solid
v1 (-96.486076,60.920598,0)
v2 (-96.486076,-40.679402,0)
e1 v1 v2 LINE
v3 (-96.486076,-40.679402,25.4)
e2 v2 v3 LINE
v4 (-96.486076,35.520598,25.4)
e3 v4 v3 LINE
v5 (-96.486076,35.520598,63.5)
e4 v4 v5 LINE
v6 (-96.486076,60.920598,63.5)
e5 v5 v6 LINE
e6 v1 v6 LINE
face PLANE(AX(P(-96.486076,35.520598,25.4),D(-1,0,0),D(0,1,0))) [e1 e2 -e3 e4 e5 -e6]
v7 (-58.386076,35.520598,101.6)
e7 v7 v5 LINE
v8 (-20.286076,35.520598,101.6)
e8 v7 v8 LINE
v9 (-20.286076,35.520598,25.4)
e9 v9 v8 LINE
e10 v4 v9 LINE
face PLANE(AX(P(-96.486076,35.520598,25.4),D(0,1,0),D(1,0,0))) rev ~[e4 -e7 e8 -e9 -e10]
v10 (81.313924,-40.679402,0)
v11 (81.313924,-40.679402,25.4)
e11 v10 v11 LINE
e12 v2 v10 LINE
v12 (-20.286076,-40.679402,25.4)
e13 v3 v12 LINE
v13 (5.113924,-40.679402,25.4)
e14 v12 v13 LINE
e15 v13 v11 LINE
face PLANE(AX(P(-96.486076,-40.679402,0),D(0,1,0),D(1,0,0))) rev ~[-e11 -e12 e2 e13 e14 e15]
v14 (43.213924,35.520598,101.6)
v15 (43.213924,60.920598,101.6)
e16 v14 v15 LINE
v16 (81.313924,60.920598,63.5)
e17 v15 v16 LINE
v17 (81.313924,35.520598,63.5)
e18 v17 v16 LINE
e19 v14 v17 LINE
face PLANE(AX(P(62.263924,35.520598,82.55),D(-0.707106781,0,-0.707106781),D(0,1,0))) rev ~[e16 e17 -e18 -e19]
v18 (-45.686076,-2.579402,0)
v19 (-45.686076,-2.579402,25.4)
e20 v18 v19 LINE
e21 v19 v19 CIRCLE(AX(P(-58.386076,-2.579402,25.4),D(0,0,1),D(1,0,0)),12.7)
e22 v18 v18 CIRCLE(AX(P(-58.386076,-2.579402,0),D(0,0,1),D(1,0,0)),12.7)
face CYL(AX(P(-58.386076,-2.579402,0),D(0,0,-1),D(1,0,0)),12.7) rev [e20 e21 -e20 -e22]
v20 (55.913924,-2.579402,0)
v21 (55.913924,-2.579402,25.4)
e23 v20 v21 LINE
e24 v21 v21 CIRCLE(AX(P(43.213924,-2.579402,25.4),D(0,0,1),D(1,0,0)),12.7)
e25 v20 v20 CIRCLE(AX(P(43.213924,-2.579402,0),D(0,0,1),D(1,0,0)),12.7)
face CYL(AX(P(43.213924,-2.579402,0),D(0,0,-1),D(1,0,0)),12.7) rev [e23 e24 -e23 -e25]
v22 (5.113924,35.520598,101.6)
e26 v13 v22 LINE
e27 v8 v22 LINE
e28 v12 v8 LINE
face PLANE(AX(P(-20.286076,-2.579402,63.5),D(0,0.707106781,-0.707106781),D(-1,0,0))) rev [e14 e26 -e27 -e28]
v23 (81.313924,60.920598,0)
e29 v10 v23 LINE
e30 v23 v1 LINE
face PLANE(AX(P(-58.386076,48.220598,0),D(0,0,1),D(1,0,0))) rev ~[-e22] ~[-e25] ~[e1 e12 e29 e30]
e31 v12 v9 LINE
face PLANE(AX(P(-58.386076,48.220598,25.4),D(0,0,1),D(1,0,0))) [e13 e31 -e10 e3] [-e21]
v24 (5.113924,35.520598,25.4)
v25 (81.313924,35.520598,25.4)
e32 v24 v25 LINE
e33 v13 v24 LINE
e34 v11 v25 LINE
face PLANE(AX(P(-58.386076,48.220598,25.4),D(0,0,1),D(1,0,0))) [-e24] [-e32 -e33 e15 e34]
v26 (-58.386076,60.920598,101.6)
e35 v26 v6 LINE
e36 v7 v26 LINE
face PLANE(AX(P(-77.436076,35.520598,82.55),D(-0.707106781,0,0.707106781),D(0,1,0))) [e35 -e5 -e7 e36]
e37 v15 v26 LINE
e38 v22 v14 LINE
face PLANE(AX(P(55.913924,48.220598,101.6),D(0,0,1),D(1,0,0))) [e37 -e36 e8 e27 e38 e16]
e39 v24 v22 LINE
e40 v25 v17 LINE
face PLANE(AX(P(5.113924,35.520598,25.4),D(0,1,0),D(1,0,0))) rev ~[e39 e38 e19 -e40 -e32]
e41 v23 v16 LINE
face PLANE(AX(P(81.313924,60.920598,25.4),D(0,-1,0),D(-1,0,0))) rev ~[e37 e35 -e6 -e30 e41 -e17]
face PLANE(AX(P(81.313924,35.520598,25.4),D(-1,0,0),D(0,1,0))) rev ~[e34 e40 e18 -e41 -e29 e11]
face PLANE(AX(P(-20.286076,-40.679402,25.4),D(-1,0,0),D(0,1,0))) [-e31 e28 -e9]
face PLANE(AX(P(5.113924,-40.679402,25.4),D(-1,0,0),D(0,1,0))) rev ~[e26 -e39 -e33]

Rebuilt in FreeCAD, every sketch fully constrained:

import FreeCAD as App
import Part
import Sketcher

V = App.Vector
Q = App.Units.Quantity


def edges_at(feature, points):
    """Names of the edges that pass closest to the given points."""
    edges = feature.Shape.Edges
    near = lambda p: min(range(len(edges)), key=lambda i: edges[i].distToShape(Part.Vertex(*p))[0])
    return sorted({f"Edge{near(p) + 1}" for p in points})


def add_polygon(sketch, points):
    """Adds a closed chain of lines whose ends are joined by coincident constraints."""
    first, n = sketch.GeometryCount, len(points)
    for a, b in zip(points, points[1:] + points[:1]):
        sketch.addGeometry(Part.LineSegment(App.Vector(*a, 0), App.Vector(*b, 0)), False)
    for i in range(n):
        sketch.addConstraint(Sketcher.Constraint("Coincident", first + i, 2, first + (i + 1) % n, 1))

doc = App.newDocument("Part")
body = doc.addObject("PartDesign::Body", "Body")

sketch1 = body.newObject("Sketcher::SketchObject", "Sketch")
sketch1.AttachmentSupport = (doc.getObject("XY_Plane"), [""])
sketch1.MapMode = "FlatFace"
add_polygon(sketch1, [(-96, 61), (-96, -41), (81, -41), (81, 61)])
sketch1.addGeometry(Part.Circle(V(-58, -3, 0), V(0, 0, 1), 13), False)
sketch1.addGeometry(Part.Circle(V(43, -3, 0), V(0, 0, 1), 13), False)
sketch1.addConstraint(Sketcher.Constraint("Vertical", 0))
sketch1.addConstraint(Sketcher.Constraint("Horizontal", 1))
sketch1.addConstraint(Sketcher.Constraint("Vertical", 2))
sketch1.addConstraint(Sketcher.Constraint("Horizontal", 3))
sketch1.addConstraint(Sketcher.Constraint("Equal", 4, 5))
sketch1.addConstraint(Sketcher.Constraint("Horizontal", 4, 3, 5, 3))
sketch1.addConstraint(Sketcher.Constraint("Diameter", 4, Q("1 in")))
sketch1.addConstraint(Sketcher.Constraint("DistanceX", 1, 1, 1, 2, Q("7 in")))
sketch1.addConstraint(Sketcher.Constraint("DistanceY", 0, 2, 0, 1, Q("4 in")))
sketch1.addConstraint(Sketcher.Constraint("DistanceX", 4, 3, 5, 3, Q("4 in")))
sketch1.addConstraint(Sketcher.Constraint("DistanceX", 0, 2, 4, 3, Q("1.5 in")))
sketch1.addConstraint(Sketcher.Constraint("DistanceY", 0, 2, 4, 3, Q("1.5 in")))
sketch1.addConstraint(Sketcher.Constraint("DistanceX", 4, 3, -1, 1, 58.386076))
sketch1.addConstraint(Sketcher.Constraint("DistanceY", 4, 3, -1, 1, 2.579402))
pad1 = body.newObject("PartDesign::Pad", "Pad")
pad1.Profile = sketch1
pad1.Length = Q("1 in")

sketch2 = body.newObject("Sketcher::SketchObject", "Sketch001")
sketch2.AttachmentSupport = (doc.getObject("XY_Plane"), [""])
sketch2.MapMode = "FlatFace"
sketch2.AttachmentOffset = App.Placement(V(0, 0, 1 * 25.4), App.Rotation())
add_polygon(sketch2, [(81, 36), (81, 61), (-96, 61), (-96, 36), (-20, 36), (-20, -41), (5, -41), (5, 36)])
sketch2.addConstraint(Sketcher.Constraint("Vertical", 0))
sketch2.addConstraint(Sketcher.Constraint("Horizontal", 1))
sketch2.addConstraint(Sketcher.Constraint("Vertical", 2))
sketch2.addConstraint(Sketcher.Constraint("Horizontal", 3))
sketch2.addConstraint(Sketcher.Constraint("Vertical", 4))
sketch2.addConstraint(Sketcher.Constraint("Horizontal", 5))
sketch2.addConstraint(Sketcher.Constraint("Vertical", 6))
sketch2.addConstraint(Sketcher.Constraint("Horizontal", 7))
sketch2.addConstraint(Sketcher.Constraint("Horizontal", 3, 2, 6, 2))
sketch2.addConstraint(Sketcher.Constraint("Equal", 3, 7))
sketch2.addConstraint(Sketcher.Constraint("Equal", 5, 0))
sketch2.addConstraint(Sketcher.Constraint("Equal", 7, 4))
sketch2.addConstraint(Sketcher.Constraint("DistanceX", 1, 2, 1, 1, Q("7 in")))
sketch2.addConstraint(Sketcher.Constraint("DistanceX", 3, 1, 3, 2, Q("3 in")))
sketch2.addConstraint(Sketcher.Constraint("DistanceX", -1, 1, 0, 2, 81.313924))
sketch2.addConstraint(Sketcher.Constraint("DistanceY", -1, 1, 0, 2, 60.920598))
pad2 = body.newObject("PartDesign::Pad", "Pad001")
pad2.Profile = sketch2
pad2.Length = Q("3 in")
doc.recompute()

chamfer = body.newObject("PartDesign::Chamfer", "Chamfer")
chamfer.Base = (pad2, edges_at(pad2, [(-7.586, -40.679, 101.6)]))
chamfer.Size = Q("3 in")
doc.recompute()

chamfer2 = body.newObject("PartDesign::Chamfer", "Chamfer001")
chamfer2.Base = (chamfer, edges_at(chamfer, [(81.314, 48.221, 101.6), (-96.486, 48.221, 101.6)]))
chamfer2.Size = Q("1.5 in")

doc.recompute()
